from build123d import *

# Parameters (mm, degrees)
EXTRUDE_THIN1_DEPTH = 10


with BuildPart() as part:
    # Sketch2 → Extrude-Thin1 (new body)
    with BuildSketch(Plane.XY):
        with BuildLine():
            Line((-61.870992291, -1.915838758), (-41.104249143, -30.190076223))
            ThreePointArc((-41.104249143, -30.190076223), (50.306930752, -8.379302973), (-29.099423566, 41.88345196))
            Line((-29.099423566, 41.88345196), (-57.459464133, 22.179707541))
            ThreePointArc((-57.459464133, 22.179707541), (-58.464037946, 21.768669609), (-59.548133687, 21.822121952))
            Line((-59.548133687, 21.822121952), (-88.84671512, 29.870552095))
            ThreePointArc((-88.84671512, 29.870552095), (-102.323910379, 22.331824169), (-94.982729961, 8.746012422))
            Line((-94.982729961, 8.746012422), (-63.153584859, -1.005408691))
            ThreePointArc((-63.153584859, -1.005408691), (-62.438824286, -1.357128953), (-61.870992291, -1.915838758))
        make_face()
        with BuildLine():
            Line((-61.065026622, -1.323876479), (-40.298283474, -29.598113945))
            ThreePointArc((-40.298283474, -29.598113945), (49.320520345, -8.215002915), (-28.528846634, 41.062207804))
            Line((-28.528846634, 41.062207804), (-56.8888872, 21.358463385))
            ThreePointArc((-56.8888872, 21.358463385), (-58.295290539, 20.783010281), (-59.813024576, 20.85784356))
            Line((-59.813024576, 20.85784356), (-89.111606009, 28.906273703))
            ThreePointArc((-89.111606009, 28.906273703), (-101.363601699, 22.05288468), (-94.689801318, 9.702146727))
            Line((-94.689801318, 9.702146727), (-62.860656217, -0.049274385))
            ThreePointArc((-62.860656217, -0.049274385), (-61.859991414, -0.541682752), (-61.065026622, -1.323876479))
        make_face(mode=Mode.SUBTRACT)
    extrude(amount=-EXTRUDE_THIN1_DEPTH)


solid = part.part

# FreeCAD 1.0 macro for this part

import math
import FreeCAD as App
import Part
import Sketcher

V = App.Vector
Q = App.Units.Quantity

doc = App.newDocument("Part")
body = doc.addObject("PartDesign::Body", "Body")

# Sketch on XY plane
sketch1 = body.newObject("Sketcher::SketchObject", "Sketch")
sketch1.AttachmentSupport = (doc.getObject("XY_Plane"), [""])
sketch1.MapMode = "FlatFace"
sketch1.addGeometry([
    Part.LineSegment(V(-61.870992, -1.915839, 0), V(-41.104249, -30.190076, 0)),  # 0
    Part.ArcOfCircle(Part.Circle(V(0, 0, 0), V(0, 0, 1), 51), math.radians(-143.703619), math.radians(124.790467)),  # 1
    Part.LineSegment(V(-29.099424, 41.883452, 0), V(-57.459464, 22.179708, 0)),  # 2
    Part.ArcOfCircle(Part.Circle(V(-58.885906, 24.232818, 0), V(0, 0, 1), 2.5), math.radians(-105.36047), math.radians(-55.209533)),  # 3
    Part.LineSegment(V(-59.548134, 21.822122, 0), V(-88.846715, 29.870552, 0)),  # 4
    Part.ArcOfCircle(Part.Circle(V(-91.760515, 19.26349, 0), V(0, 0, 1), 11), math.radians(74.639531), math.radians(252.966629)),  # 5
    Part.LineSegment(V(-94.98273, 8.746012, 0), V(-63.153585, -1.005409, 0)),  # 6
    Part.ArcOfCircle(Part.Circle(V(-63.885906, -3.395744, 0), V(0, 0, 1), 2.5), math.radians(36.296382), math.radians(72.966629)),  # 7
    Part.LineSegment(V(-40.298283, -29.598114, 0), V(-61.065027, -1.323876, 0)),  # 8
    Part.ArcOfCircle(Part.Circle(V(-63.885906, -3.395744, 0), V(0, 0, 1), 3.5), math.radians(36.296381), math.radians(72.966629)),  # 9
    Part.LineSegment(V(-62.860656, -0.049274, 0), V(-94.689801, 9.702147, 0)),  # 10
    Part.ArcOfCircle(Part.Circle(V(-91.760515, 19.26349, 0), V(0, 0, 1), 10), math.radians(74.63953), math.radians(252.966629)),  # 11
    Part.LineSegment(V(-89.111606, 28.906274, 0), V(-59.813025, 20.857844, 0)),  # 12
    Part.ArcOfCircle(Part.Circle(V(-58.885906, 24.232818, 0), V(0, 0, 1), 3.5), math.radians(-105.360469), math.radians(-55.209533)),  # 13
    Part.LineSegment(V(-56.888887, 21.358463, 0), V(-28.528847, 41.062208, 0)),  # 14
    Part.ArcOfCircle(Part.Circle(V(0, 0, 0), V(0, 0, 1), 50), math.radians(-143.703619), math.radians(124.790467)),  # 15
], False)
sketch1.addConstraint([
    Sketcher.Constraint("Tangent", 0, 2, 1, 1),
    Sketcher.Constraint("Tangent", 1, 2, 2, 1),
    Sketcher.Constraint("Tangent", 2, 2, 3, 2),
    Sketcher.Constraint("Tangent", 3, 1, 4, 1),
    Sketcher.Constraint("Tangent", 4, 2, 5, 1),
    Sketcher.Constraint("Tangent", 5, 2, 6, 1),
    Sketcher.Constraint("Tangent", 6, 2, 7, 2),
    Sketcher.Constraint("Tangent", 7, 1, 0, 1),
    Sketcher.Constraint("Tangent", 8, 2, 9, 1),
    Sketcher.Constraint("Tangent", 9, 2, 10, 1),
    Sketcher.Constraint("Tangent", 10, 2, 11, 2),
    Sketcher.Constraint("Tangent", 11, 1, 12, 1),
    Sketcher.Constraint("Tangent", 12, 2, 13, 1),
    Sketcher.Constraint("Tangent", 13, 2, 14, 1),
    Sketcher.Constraint("Tangent", 14, 2, 15, 2),
    Sketcher.Constraint("Tangent", 15, 1, 8, 1),
    Sketcher.Constraint("Coincident", 1, 3, -1, 1),
    Sketcher.Constraint("Coincident", 15, 3, -1, 1),
    Sketcher.Constraint("Coincident", 9, 3, 7, 3),
    Sketcher.Constraint("Coincident", 11, 3, 5, 3),
    Sketcher.Constraint("Coincident", 13, 3, 3, 3),
    Sketcher.Constraint("Equal", 3, 7),
    Sketcher.Constraint("Equal", 9, 13),
    Sketcher.Constraint("Parallel", 0, 8),
    Sketcher.Constraint("Parallel", 6, 10),
    Sketcher.Constraint("Radius", 1, Q("51 mm")),
    Sketcher.Constraint("Radius", 5, Q("11 mm")),
    Sketcher.Constraint("Radius", 11, Q("10 mm")),
    Sketcher.Constraint("Radius", 3, Q("2.5 mm")),
    Sketcher.Constraint("DistanceX", 7, 3, 3, 3, Q("5 mm")),
    Sketcher.Constraint("DistanceY", 8, 2, 3, 1, Q("23.145998 mm")),
    Sketcher.Constraint("DistanceX", 10, 2, -1, 1, Q("94.689801 mm")),
    Sketcher.Constraint("DistanceX", 5, 3, 4, 2, Q("2.9138 mm")),
    Sketcher.Constraint("DistanceY", 2, 2, 14, 2, Q("18.8825 mm")),
    Sketcher.Constraint("Distance", 2, Q("34.53302 mm")),
])
pad1 = body.newObject("PartDesign::Pad", "Pad")
pad1.Profile = sketch1
pad1.Length = 10
pad1.Reversed = True

doc.recompute()
